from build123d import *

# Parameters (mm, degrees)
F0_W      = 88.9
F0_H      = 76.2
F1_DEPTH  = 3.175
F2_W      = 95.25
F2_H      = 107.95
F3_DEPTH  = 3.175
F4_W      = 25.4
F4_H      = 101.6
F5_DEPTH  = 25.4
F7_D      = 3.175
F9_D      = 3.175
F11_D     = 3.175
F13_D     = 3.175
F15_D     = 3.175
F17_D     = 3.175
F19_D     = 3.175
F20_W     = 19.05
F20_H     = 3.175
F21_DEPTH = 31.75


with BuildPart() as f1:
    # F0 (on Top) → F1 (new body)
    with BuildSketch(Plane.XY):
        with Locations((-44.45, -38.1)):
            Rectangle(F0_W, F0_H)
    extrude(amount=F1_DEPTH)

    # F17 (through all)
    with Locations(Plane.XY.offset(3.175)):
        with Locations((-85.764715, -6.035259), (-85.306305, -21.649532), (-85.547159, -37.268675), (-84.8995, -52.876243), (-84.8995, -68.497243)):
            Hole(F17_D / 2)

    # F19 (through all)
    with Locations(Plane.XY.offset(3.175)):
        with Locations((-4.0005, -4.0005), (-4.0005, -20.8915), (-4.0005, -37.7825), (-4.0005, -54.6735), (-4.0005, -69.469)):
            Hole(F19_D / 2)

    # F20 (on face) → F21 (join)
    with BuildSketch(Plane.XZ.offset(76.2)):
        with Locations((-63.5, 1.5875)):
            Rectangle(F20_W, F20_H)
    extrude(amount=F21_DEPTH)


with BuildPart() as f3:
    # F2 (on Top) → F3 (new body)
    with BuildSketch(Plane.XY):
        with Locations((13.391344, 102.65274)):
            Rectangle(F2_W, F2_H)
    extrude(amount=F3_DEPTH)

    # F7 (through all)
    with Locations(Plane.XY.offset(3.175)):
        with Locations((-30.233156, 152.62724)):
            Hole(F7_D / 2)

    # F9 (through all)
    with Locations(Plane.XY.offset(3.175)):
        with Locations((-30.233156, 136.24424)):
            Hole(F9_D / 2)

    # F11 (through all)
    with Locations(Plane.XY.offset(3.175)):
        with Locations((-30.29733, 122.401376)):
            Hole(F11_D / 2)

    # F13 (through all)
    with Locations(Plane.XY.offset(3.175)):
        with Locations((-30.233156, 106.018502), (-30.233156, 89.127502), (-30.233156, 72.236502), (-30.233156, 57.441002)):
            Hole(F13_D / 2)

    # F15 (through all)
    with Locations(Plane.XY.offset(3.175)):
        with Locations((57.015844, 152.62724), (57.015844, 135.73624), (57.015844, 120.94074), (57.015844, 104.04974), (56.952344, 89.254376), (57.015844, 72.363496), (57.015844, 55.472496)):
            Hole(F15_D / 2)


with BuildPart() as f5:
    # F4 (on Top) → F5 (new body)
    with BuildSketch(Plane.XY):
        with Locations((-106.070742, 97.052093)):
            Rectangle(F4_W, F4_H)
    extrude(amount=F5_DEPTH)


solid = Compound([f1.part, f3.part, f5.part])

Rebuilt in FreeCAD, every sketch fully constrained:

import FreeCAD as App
import Part
import Sketcher

V = App.Vector
Q = App.Units.Quantity


def add_polygon(sketch, points):
    """Adds a closed chain of lines whose ends are joined by coincident constraints."""
    first, n = sketch.GeometryCount, len(points)
    for a, b in zip(points, points[1:] + points[:1]):
        sketch.addGeometry(Part.LineSegment(App.Vector(*a, 0), App.Vector(*b, 0)), False)
    for i in range(n):
        sketch.addConstraint(Sketcher.Constraint("Coincident", first + i, 2, first + (i + 1) % n, 1))

doc = App.newDocument("Part")
params = doc.addObject("Spreadsheet::Sheet", "Params")
for row, (alias, value) in enumerate([
    ("sketch1_height", "3 in"),
    ("sketch1_width", "3.5 in"),
    ("pad1_length", "0.125 in"),
    ("sketch2_diameter", "0.125 in"),
    ("hole_diameter", "0.125 in"),
    ("sketch3_diameter", "0.125 in"),
    ("hole2_diameter", "0.125 in"),
    ("sketch4_width", "0.75 in"),
    ("sketch4_height", "0.125 in"),
    ("pad2_length", "1.25 in"),
    ("sketch5_width", "3.75 in"),
    ("sketch5_height", "4.25 in"),
    ("pad3_length", "0.125 in"),
    ("sketch6_diameter", "0.125 in"),
    ("hole3_diameter", "0.125 in"),
    ("sketch7_diameter", "0.125 in"),
    ("hole4_diameter", "0.125 in"),
    ("sketch8_diameter", "0.125 in"),
    ("hole5_diameter", "0.125 in"),
    ("sketch9_diameter", "0.125 in"),
    ("hole6_diameter", "0.125 in"),
    ("sketch10_diameter", "0.125 in"),
    ("hole7_diameter", "0.125 in"),
    ("sketch11_width", "1 in"),
    ("sketch11_height", "4 in"),
    ("pad4_length", "1 in"),
], start=1):
    params.set(f"A{row}", alias)
    params.set(f"B{row}", "=" + value)
    params.setAlias(f"B{row}", alias)

body = doc.addObject("PartDesign::Body", "Body")

# Sketch on XY plane
sketch1 = body.newObject("Sketcher::SketchObject", "Sketch")
sketch1.AttachmentSupport = (doc.getObject("XY_Plane"), [""])
sketch1.MapMode = "FlatFace"
add_polygon(sketch1, [(-89, 0), (-89, -76), (0, -76), (0, 0)])  # lines 0-3
sketch1.addConstraint([
    Sketcher.Constraint("Vertical", 0),
    Sketcher.Constraint("Horizontal", 1),
    Sketcher.Constraint("Vertical", 2),
    Sketcher.Constraint("Horizontal", 3),
    Sketcher.Constraint("Coincident", 2, 2, -1, 1),
    Sketcher.Constraint("DistanceY", 0, 2, 0, 1, Q("3 in")),
    Sketcher.Constraint("DistanceX", 1, 1, 1, 2, Q("3.5 in")),
])
sketch1.setExpression("Constraints[9]", "Params.sketch1_height")
sketch1.setExpression("Constraints[10]", "Params.sketch1_width")
pad1 = body.newObject("PartDesign::Pad", "Pad")
pad1.Profile = sketch1
pad1.setExpression("Length", "Params.pad1_length")

# Sketch on XY plane
sketch2 = body.newObject("Sketcher::SketchObject", "Sketch001")
sketch2.AttachmentSupport = (doc.getObject("XY_Plane"), [""])
sketch2.MapMode = "FlatFace"
sketch2.AttachmentOffset = App.Placement(V(0, 0, 0.125 * 25.4), App.Rotation())
sketch2.addGeometry([
    Part.Circle(V(-85.8, -6, 0), V(0, 0, 1), 1.6),  # 0
    Part.Circle(V(-85.3, -21.6, 0), V(0, 0, 1), 1.6),  # 1
    Part.Circle(V(-85.5, -37.3, 0), V(0, 0, 1), 1.6),  # 2
    Part.Circle(V(-84.9, -52.9, 0), V(0, 0, 1), 1.6),  # 3
    Part.Circle(V(-84.9, -68.5, 0), V(0, 0, 1), 1.6),  # 4
], False)
sketch2.addConstraint([
    Sketcher.Constraint("Equal", 0, 1),
    Sketcher.Constraint("Equal", 1, 2),
    Sketcher.Constraint("Equal", 2, 3),
    Sketcher.Constraint("Equal", 3, 4),
    Sketcher.Constraint("Vertical", 3, 3, 4, 3),
    Sketcher.Constraint("Diameter", 0, Q("0.125 in")),
    Sketcher.Constraint("DistanceY", 4, 3, 3, 3, Q("0.615 in")),
    Sketcher.Constraint("DistanceX", 3, 3, -1, 1, Q("3.3425 in")),
    Sketcher.Constraint("DistanceY", 0, 3, -1, 1, Q("6.035259 mm")),
    Sketcher.Constraint("DistanceX", 2, 3, -1, 1, Q("85.547159 mm")),
    Sketcher.Constraint("DistanceX", 0, 3, 1, 3, Q("0.45841 mm")),
    Sketcher.Constraint("DistanceY", 3, 3, 1, 3, Q("31.226711 mm")),
    Sketcher.Constraint("DistanceX", 0, 3, -1, 1, Q("85.764715 mm")),
    Sketcher.Constraint("DistanceY", 1, 3, -1, 1, Q("21.649532 mm")),
    Sketcher.Constraint("DistanceY", 2, 3, -1, 1, Q("37.268675 mm")),
])
sketch2.setExpression("Constraints[5]", "Params.sketch2_diameter")
doc.recompute()
hole = body.newObject("PartDesign::Hole", "Hole")
hole.Profile = sketch2
hole.ThreadType = "None"
hole.setExpression("Diameter", "Params.hole_diameter")
hole.DepthType = "ThroughAll"

# Sketch on XY plane
sketch3 = body.newObject("Sketcher::SketchObject", "Sketch002")
sketch3.AttachmentSupport = (doc.getObject("XY_Plane"), [""])
sketch3.MapMode = "FlatFace"
sketch3.AttachmentOffset = App.Placement(V(0, 0, 0.125 * 25.4), App.Rotation())
sketch3.addGeometry([
    Part.Circle(V(-4, -4, 0), V(0, 0, 1), 1.6),  # 0
    Part.Circle(V(-4, -20.9, 0), V(0, 0, 1), 1.6),  # 1
    Part.Circle(V(-4, -37.8, 0), V(0, 0, 1), 1.6),  # 2
    Part.Circle(V(-4, -54.7, 0), V(0, 0, 1), 1.6),  # 3
    Part.Circle(V(-4, -69.5, 0), V(0, 0, 1), 1.6),  # 4
], False)
sketch3.addConstraint([
    Sketcher.Constraint("Equal", 0, 1),
    Sketcher.Constraint("Equal", 1, 2),
    Sketcher.Constraint("Equal", 2, 3),
    Sketcher.Constraint("Equal", 3, 4),
    Sketcher.Constraint("Vertical", 0, 3, 1, 3),
    Sketcher.Constraint("Vertical", 1, 3, 2, 3),
    Sketcher.Constraint("Vertical", 2, 3, 3, 3),
    Sketcher.Constraint("Vertical", 3, 3, 4, 3),
    Sketcher.Constraint("Diameter", 0, Q("0.125 in")),
    Sketcher.Constraint("DistanceY", 2, 3, 0, 3, Q("1.33 in")),
    Sketcher.Constraint("DistanceY", 3, 3, 1, 3, Q("1.33 in")),
    Sketcher.Constraint("DistanceY", 4, 3, -1, 1, Q("2.735 in")),
    Sketcher.Constraint("DistanceY", 1, 3, 0, 3, Q("0.665 in")),
    Sketcher.Constraint("DistanceX", 0, 3, -1, 1, Q("0.1575 in")),
    Sketcher.Constraint("DistanceY", 0, 3, -1, 1, Q("0.1575 in")),
])
sketch3.setExpression("Constraints[8]", "Params.sketch3_diameter")
doc.recompute()
hole2 = body.newObject("PartDesign::Hole", "Hole001")
hole2.Profile = sketch3
hole2.ThreadType = "None"
hole2.setExpression("Diameter", "Params.hole2_diameter")
hole2.DepthType = "ThroughAll"

# Sketch on XZ plane
sketch4 = body.newObject("Sketcher::SketchObject", "Sketch003")
sketch4.AttachmentSupport = (doc.getObject("XZ_Plane"), [""])
sketch4.MapMode = "FlatFace"
sketch4.AttachmentOffset = App.Placement(V(0, 0, 3 * 25.4), App.Rotation())
add_polygon(sketch4, [(-73, 3.2), (-73, 0), (-54, 0), (-54, 3.2)])  # lines 0-3
sketch4.addConstraint([
    Sketcher.Constraint("Vertical", 0),
    Sketcher.Constraint("Horizontal", 1),
    Sketcher.Constraint("Vertical", 2),
    Sketcher.Constraint("Horizontal", 3),
    Sketcher.Constraint("PointOnObject", 0, 2, -1),
    Sketcher.Constraint("DistanceX", 1, 1, 1, 2, Q("0.75 in")),
    Sketcher.Constraint("DistanceY", 0, 2, 0, 1, Q("0.125 in")),
    Sketcher.Constraint("DistanceX", 0, 2, -1, 1, Q("2.875 in")),
])
sketch4.setExpression("Constraints[9]", "Params.sketch4_width")
sketch4.setExpression("Constraints[10]", "Params.sketch4_height")
pad2 = body.newObject("PartDesign::Pad", "Pad001")
pad2.Profile = sketch4
pad2.setExpression("Length", "Params.pad2_length")
body2 = doc.addObject("PartDesign::Body", "Body001")

# Sketch on XY plane
sketch5 = body2.newObject("Sketcher::SketchObject", "Sketch004")
sketch5.AttachmentSupport = (doc.getObject("XY_Plane001"), [""])
sketch5.MapMode = "FlatFace"
add_polygon(sketch5, [(-34, 157), (-34, 49), (61, 49), (61, 157)])  # lines 0-3
sketch5.addConstraint([
    Sketcher.Constraint("Vertical", 0),
    Sketcher.Constraint("Horizontal", 1),
    Sketcher.Constraint("Vertical", 2),
    Sketcher.Constraint("Horizontal", 3),
    Sketcher.Constraint("DistanceX", 1, 1, 1, 2, Q("3.75 in")),
    Sketcher.Constraint("DistanceY", 0, 2, 0, 1, Q("4.25 in")),
    Sketcher.Constraint("DistanceY", -1, 1, 0, 2, Q("48.67774 mm")),
    Sketcher.Constraint("DistanceX", 0, 2, -1, 1, Q("34.233656 mm")),
])
sketch5.setExpression("Constraints[8]", "Params.sketch5_width")
sketch5.setExpression("Constraints[9]", "Params.sketch5_height")
pad3 = body2.newObject("PartDesign::Pad", "Pad002")
pad3.Profile = sketch5
pad3.setExpression("Length", "Params.pad3_length")

# Sketch on XY plane
sketch6 = body2.newObject("Sketcher::SketchObject", "Sketch005")
sketch6.AttachmentSupport = (doc.getObject("XY_Plane001"), [""])
sketch6.MapMode = "FlatFace"
sketch6.AttachmentOffset = App.Placement(V(0, 0, 0.125 * 25.4), App.Rotation())
sketch6.addGeometry(Part.Circle(V(-30.2, 152.6, 0), V(0, 0, 1), 1.6), False)
sketch6.addConstraint([
    Sketcher.Constraint("Diameter", 0, Q("0.125 in")),
    Sketcher.Constraint("DistanceY", -1, 1, 0, 3, Q("152.62724 mm")),
    Sketcher.Constraint("DistanceX", 0, 3, -1, 1, Q("30.233156 mm")),
])
sketch6.setExpression("Constraints[0]", "Params.sketch6_diameter")
doc.recompute()
hole3 = body2.newObject("PartDesign::Hole", "Hole002")
hole3.Profile = sketch6
hole3.ThreadType = "None"
hole3.setExpression("Diameter", "Params.hole3_diameter")
hole3.DepthType = "ThroughAll"

# Sketch on XY plane
sketch7 = body2.newObject("Sketcher::SketchObject", "Sketch006")
sketch7.AttachmentSupport = (doc.getObject("XY_Plane001"), [""])
sketch7.MapMode = "FlatFace"
sketch7.AttachmentOffset = App.Placement(V(0, 0, 0.125 * 25.4), App.Rotation())
sketch7.addGeometry(Part.Circle(V(-30.2, 136.2, 0), V(0, 0, 1), 1.6), False)
sketch7.addConstraint([
    Sketcher.Constraint("Diameter", 0, Q("0.125 in")),
    Sketcher.Constraint("DistanceY", -1, 1, 0, 3, Q("136.24424 mm")),
    Sketcher.Constraint("DistanceX", 0, 3, -1, 1, Q("30.233156 mm")),
])
sketch7.setExpression("Constraints[0]", "Params.sketch7_diameter")
doc.recompute()
hole4 = body2.newObject("PartDesign::Hole", "Hole003")
hole4.Profile = sketch7
hole4.ThreadType = "None"
hole4.setExpression("Diameter", "Params.hole4_diameter")
hole4.DepthType = "ThroughAll"

# Sketch on XY plane
sketch8 = body2.newObject("Sketcher::SketchObject", "Sketch007")
sketch8.AttachmentSupport = (doc.getObject("XY_Plane001"), [""])
sketch8.MapMode = "FlatFace"
sketch8.AttachmentOffset = App.Placement(V(0, 0, 0.125 * 25.4), App.Rotation())
sketch8.addGeometry(Part.Circle(V(-30.3, 122.4, 0), V(0, 0, 1), 1.6), False)
sketch8.addConstraint([
    Sketcher.Constraint("Diameter", 0, Q("0.125 in")),
    Sketcher.Constraint("DistanceX", 0, 3, -1, 1, Q("30.29733 mm")),
    Sketcher.Constraint("DistanceY", -1, 1, 0, 3, Q("122.401376 mm")),
])
sketch8.setExpression("Constraints[0]", "Params.sketch8_diameter")
doc.recompute()
hole5 = body2.newObject("PartDesign::Hole", "Hole004")
hole5.Profile = sketch8
hole5.ThreadType = "None"
hole5.setExpression("Diameter", "Params.hole5_diameter")
hole5.DepthType = "ThroughAll"

# Sketch on XY plane
sketch9 = body2.newObject("Sketcher::SketchObject", "Sketch008")
sketch9.AttachmentSupport = (doc.getObject("XY_Plane001"), [""])
sketch9.MapMode = "FlatFace"
sketch9.AttachmentOffset = App.Placement(V(0, 0, 0.125 * 25.4), App.Rotation())
sketch9.addGeometry([
    Part.Circle(V(-30.2, 106, 0), V(0, 0, 1), 1.6),
    Part.Circle(V(-30.2, 89.1, 0), V(0, 0, 1), 1.6),
    Part.Circle(V(-30.2, 72.2, 0), V(0, 0, 1), 1.6),
    Part.Circle(V(-30.2, 57.4, 0), V(0, 0, 1), 1.6),
], False)
sketch9.addConstraint([
    Sketcher.Constraint("Equal", 0, 1),
    Sketcher.Constraint("Equal", 1, 2),
    Sketcher.Constraint("Equal", 2, 3),
    Sketcher.Constraint("Vertical", 0, 3, 1, 3),
    Sketcher.Constraint("Vertical", 1, 3, 2, 3),
    Sketcher.Constraint("Vertical", 2, 3, 3, 3),
    Sketcher.Constraint("Diameter", 0, Q("0.125 in")),
    Sketcher.Constraint("DistanceY", 2, 3, 0, 3, Q("1.33 in")),
    Sketcher.Constraint("DistanceY", 1, 3, 0, 3, Q("0.665 in")),
    Sketcher.Constraint("DistanceY", 3, 3, 2, 3, Q("0.5825 in")),
    Sketcher.Constraint("DistanceY", -1, 1, 0, 3, Q("106.018502 mm")),
    Sketcher.Constraint("DistanceX", 0, 3, -1, 1, Q("30.233156 mm")),
])
sketch9.setExpression("Constraints[6]", "Params.sketch9_diameter")
doc.recompute()
hole6 = body2.newObject("PartDesign::Hole", "Hole005")
hole6.Profile = sketch9
hole6.ThreadType = "None"
hole6.setExpression("Diameter", "Params.hole6_diameter")
hole6.DepthType = "ThroughAll"

# Sketch on XY plane
sketch10 = body2.newObject("Sketcher::SketchObject", "Sketch009")
sketch10.AttachmentSupport = (doc.getObject("XY_Plane001"), [""])
sketch10.MapMode = "FlatFace"
sketch10.AttachmentOffset = App.Placement(V(0, 0, 0.125 * 25.4), App.Rotation())
sketch10.addGeometry([
    Part.Circle(V(57, 152.6, 0), V(0, 0, 1), 1.6),  # 0
    Part.Circle(V(57, 135.7, 0), V(0, 0, 1), 1.6),  # 1
    Part.Circle(V(57, 120.9, 0), V(0, 0, 1), 1.6),  # 2
    Part.Circle(V(57, 104, 0), V(0, 0, 1), 1.6),  # 3
    Part.Circle(V(57, 89.3, 0), V(0, 0, 1), 1.6),  # 4
    Part.Circle(V(57, 72.4, 0), V(0, 0, 1), 1.6),  # 5
    Part.Circle(V(57, 55.5, 0), V(0, 0, 1), 1.6),  # 6
], False)
sketch10.addConstraint([
    Sketcher.Constraint("Equal", 0, 1),
    Sketcher.Constraint("Equal", 1, 2),
    Sketcher.Constraint("Equal", 2, 3),
    Sketcher.Constraint("Equal", 3, 4),
    Sketcher.Constraint("Equal", 4, 5),
    Sketcher.Constraint("Equal", 5, 6),
    Sketcher.Constraint("Vertical", 0, 3, 1, 3),
    Sketcher.Constraint("Vertical", 1, 3, 2, 3),
    Sketcher.Constraint("Vertical", 2, 3, 3, 3),
    Sketcher.Constraint("Vertical", 3, 3, 5, 3),
    Sketcher.Constraint("Vertical", 5, 3, 6, 3),
    Sketcher.Constraint("Diameter", 0, Q("0.125 in")),
    Sketcher.Constraint("DistanceY", 1, 3, 0, 3, Q("0.665 in")),
    Sketcher.Constraint("DistanceY", 3, 3, 2, 3, Q("0.665 in")),
    Sketcher.Constraint("DistanceY", 6, 3, 5, 3, Q("0.665 in")),
    Sketcher.Constraint("DistanceY", 2, 3, 1, 3, Q("0.5825 in")),
    Sketcher.Constraint("DistanceX", 4, 3, 3, 3, Q("0.0025 in")),
    Sketcher.Constraint("DistanceY", -1, 1, 0, 3, Q("152.62724 mm")),
    Sketcher.Constraint("DistanceY", 5, 3, 4, 3, Q("16.89088 mm")),
    Sketcher.Constraint("DistanceX", -1, 1, 0, 3, Q("57.015844 mm")),
    Sketcher.Constraint("DistanceY", -1, 1, 4, 3, Q("89.254376 mm")),
])
sketch10.setExpression("Constraints[11]", "Params.sketch10_diameter")
doc.recompute()
hole7 = body2.newObject("PartDesign::Hole", "Hole006")
hole7.Profile = sketch10
hole7.ThreadType = "None"
hole7.setExpression("Diameter", "Params.hole7_diameter")
hole7.DepthType = "ThroughAll"
body3 = doc.addObject("PartDesign::Body", "Body002")

# Sketch on XY plane
sketch11 = body3.newObject("Sketcher::SketchObject", "Sketch010")
sketch11.AttachmentSupport = (doc.getObject("XY_Plane002"), [""])
sketch11.MapMode = "FlatFace"
add_polygon(sketch11, [(-119, 148), (-119, 46), (-93, 46), (-93, 148)])  # lines 0-3
sketch11.addConstraint([
    Sketcher.Constraint("Vertical", 0),
    Sketcher.Constraint("Horizontal", 1),
    Sketcher.Constraint("Vertical", 2),
    Sketcher.Constraint("Horizontal", 3),
    Sketcher.Constraint("DistanceX", 1, 1, 1, 2, Q("1 in")),
    Sketcher.Constraint("DistanceY", 0, 2, 0, 1, Q("4 in")),
    Sketcher.Constraint("DistanceX", 0, 2, -1, 1, Q("118.770742 mm")),
    Sketcher.Constraint("DistanceY", -1, 1, 0, 2, Q("46.252093 mm")),
])
sketch11.setExpression("Constraints[8]", "Params.sketch11_width")
sketch11.setExpression("Constraints[9]", "Params.sketch11_height")
pad4 = body3.newObject("PartDesign::Pad", "Pad003")
pad4.Profile = sketch11
pad4.setExpression("Length", "Params.pad4_length")

doc.recompute()
